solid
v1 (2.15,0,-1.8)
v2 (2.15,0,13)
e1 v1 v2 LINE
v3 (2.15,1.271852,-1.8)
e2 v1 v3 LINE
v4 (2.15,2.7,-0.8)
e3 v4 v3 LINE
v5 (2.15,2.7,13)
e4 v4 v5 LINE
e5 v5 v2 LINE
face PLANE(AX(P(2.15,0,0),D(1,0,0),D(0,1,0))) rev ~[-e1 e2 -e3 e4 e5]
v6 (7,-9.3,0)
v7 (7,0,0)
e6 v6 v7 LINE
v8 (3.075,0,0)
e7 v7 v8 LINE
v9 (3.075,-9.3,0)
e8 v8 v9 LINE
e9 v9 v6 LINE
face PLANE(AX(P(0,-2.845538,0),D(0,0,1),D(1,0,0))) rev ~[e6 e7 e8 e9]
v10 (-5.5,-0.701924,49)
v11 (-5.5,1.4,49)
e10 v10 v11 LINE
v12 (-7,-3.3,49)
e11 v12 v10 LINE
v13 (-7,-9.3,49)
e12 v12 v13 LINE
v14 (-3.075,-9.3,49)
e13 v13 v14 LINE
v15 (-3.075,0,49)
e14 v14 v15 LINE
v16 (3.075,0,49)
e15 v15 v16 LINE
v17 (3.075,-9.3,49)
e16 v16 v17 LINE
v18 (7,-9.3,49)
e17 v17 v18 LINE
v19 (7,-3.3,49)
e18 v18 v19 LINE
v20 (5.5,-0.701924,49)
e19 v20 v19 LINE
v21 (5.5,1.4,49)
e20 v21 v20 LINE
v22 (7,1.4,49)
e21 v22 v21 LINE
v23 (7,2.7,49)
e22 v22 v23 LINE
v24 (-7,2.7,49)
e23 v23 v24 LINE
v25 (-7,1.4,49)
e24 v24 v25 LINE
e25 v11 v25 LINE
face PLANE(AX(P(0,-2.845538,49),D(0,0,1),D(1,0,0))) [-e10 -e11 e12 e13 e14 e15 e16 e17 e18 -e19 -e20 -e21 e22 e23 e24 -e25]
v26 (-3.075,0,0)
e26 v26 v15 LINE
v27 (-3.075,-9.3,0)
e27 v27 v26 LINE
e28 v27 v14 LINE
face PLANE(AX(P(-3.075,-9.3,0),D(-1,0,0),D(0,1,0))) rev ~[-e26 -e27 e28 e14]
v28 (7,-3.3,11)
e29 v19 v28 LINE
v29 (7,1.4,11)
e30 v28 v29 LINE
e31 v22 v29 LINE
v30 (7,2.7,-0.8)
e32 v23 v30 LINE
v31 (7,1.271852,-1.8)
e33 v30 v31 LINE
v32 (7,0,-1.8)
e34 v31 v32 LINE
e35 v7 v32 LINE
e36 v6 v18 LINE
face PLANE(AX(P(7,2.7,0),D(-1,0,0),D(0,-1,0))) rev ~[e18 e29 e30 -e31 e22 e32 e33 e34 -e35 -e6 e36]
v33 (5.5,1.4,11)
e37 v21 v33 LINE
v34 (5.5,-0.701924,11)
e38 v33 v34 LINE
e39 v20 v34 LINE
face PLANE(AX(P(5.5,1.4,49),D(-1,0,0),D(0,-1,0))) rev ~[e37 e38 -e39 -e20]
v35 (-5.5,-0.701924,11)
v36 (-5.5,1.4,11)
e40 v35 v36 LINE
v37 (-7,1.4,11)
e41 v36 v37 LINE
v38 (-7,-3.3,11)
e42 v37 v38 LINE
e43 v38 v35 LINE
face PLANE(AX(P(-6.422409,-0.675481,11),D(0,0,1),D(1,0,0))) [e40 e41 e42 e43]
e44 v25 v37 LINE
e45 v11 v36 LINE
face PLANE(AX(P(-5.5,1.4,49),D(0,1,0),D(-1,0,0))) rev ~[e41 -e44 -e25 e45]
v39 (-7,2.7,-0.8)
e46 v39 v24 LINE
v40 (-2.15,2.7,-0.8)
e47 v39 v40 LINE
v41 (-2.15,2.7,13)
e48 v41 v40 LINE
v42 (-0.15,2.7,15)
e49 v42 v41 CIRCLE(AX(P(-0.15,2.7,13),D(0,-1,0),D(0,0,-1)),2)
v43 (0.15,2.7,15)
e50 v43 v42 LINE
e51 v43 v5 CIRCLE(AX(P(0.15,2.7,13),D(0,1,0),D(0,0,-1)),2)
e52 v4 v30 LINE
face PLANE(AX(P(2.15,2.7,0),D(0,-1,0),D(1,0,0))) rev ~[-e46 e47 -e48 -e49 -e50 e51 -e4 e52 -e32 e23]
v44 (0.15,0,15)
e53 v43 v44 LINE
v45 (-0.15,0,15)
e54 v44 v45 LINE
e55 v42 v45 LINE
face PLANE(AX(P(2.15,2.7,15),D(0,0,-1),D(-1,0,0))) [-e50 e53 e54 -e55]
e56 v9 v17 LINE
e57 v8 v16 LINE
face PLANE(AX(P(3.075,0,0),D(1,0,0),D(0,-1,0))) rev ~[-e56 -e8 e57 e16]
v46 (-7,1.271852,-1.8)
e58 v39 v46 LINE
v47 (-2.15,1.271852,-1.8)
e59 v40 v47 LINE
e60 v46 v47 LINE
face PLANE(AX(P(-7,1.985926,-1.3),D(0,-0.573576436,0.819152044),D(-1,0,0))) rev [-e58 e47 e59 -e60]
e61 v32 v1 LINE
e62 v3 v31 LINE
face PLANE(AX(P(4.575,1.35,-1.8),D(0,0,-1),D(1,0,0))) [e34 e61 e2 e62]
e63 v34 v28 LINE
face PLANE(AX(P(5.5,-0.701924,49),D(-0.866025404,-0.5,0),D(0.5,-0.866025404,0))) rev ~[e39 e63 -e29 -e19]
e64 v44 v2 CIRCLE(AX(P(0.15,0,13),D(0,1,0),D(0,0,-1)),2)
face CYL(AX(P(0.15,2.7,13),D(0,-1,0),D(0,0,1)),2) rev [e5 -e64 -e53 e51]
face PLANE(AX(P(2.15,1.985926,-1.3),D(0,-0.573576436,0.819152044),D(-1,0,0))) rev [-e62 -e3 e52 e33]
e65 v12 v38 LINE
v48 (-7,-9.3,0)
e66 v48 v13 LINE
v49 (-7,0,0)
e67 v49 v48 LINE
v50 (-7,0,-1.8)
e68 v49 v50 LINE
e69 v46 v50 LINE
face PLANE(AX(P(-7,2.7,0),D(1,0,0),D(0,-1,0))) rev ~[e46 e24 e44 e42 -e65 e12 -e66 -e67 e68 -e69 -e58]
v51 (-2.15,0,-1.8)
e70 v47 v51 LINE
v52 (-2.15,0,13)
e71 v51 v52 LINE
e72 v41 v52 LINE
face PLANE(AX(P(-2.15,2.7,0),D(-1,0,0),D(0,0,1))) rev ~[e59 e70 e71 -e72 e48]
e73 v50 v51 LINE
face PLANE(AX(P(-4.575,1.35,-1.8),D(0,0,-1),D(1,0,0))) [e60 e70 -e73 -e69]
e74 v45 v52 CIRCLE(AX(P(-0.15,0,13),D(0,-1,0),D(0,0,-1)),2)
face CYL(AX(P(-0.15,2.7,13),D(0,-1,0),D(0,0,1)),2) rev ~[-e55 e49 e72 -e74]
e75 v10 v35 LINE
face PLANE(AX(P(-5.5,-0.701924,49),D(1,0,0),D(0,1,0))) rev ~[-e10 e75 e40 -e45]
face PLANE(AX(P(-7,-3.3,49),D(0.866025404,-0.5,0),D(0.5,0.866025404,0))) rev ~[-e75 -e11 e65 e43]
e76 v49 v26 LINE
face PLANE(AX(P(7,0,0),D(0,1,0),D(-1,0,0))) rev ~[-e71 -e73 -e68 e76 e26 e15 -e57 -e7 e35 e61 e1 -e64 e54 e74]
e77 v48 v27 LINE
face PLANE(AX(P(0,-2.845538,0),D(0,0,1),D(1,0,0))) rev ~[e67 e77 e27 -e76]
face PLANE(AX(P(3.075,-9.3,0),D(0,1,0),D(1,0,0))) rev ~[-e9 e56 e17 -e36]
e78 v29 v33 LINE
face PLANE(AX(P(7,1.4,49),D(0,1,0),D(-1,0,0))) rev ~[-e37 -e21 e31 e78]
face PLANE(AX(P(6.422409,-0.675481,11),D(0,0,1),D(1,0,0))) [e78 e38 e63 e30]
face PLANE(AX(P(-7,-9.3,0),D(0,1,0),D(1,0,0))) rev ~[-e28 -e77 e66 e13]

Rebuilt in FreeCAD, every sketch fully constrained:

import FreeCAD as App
import Part
import Sketcher

V = App.Vector
Q = App.Units.Quantity


def edges_at(feature, points):
    """Names of the edges that pass closest to the given points."""
    edges = feature.Shape.Edges
    near = lambda p: min(range(len(edges)), key=lambda i: edges[i].distToShape(Part.Vertex(*p))[0])
    return sorted({f"Edge{near(p) + 1}" for p in points})

doc = App.newDocument("Part")
body = doc.addObject("PartDesign::Body", "Body")

sketch1 = body.newObject("Sketcher::SketchObject", "Sketch")
sketch1.AttachmentSupport = (doc.getObject("XY_Plane"), [""])
sketch1.MapMode = "FlatFace"
sketch1.addGeometry([
    Part.LineSegment(V(-3.1, -9.3, 0), V(-3.1, 0, 0)),
    Part.LineSegment(V(-3.1, 0, 0), V(3.1, 0, 0)),
    Part.LineSegment(V(3.1, 0, 0), V(3.1, -9.3, 0)),
    Part.LineSegment(V(3.1, -9.3, 0), V(7, -9.3, 0)),
    Part.LineSegment(V(7, -9.3, 0), V(7, 2.7, 0)),
    Part.LineSegment(V(7, 2.7, 0), V(-7, 2.7, 0)),
    Part.LineSegment(V(-7, 2.7, 0), V(-7, -9.3, 0)),
    Part.LineSegment(V(-7, -9.3, 0), V(-3.1, -9.3, 0)),
], False)
sketch1.addConstraint([
    Sketcher.Constraint("Coincident", 0, 2, 1, 1),
    Sketcher.Constraint("Coincident", 1, 2, 2, 1),
    Sketcher.Constraint("Coincident", 2, 2, 3, 1),
    Sketcher.Constraint("Coincident", 3, 2, 4, 1),
    Sketcher.Constraint("Coincident", 4, 2, 5, 1),
    Sketcher.Constraint("Coincident", 5, 2, 6, 1),
    Sketcher.Constraint("Coincident", 6, 2, 7, 1),
    Sketcher.Constraint("Coincident", 7, 2, 0, 1),
    Sketcher.Constraint("Vertical", 0),
    Sketcher.Constraint("Horizontal", 1),
    Sketcher.Constraint("Vertical", 2),
    Sketcher.Constraint("Horizontal", 3),
    Sketcher.Constraint("Vertical", 4),
    Sketcher.Constraint("Horizontal", 5),
    Sketcher.Constraint("Vertical", 6),
    Sketcher.Constraint("Horizontal", 7),
    Sketcher.Constraint("Symmetric", 0, 2, 1, 2, -1, 1),
    Sketcher.Constraint("Symmetric", 3, 2, 6, 2, -2),
    Sketcher.Constraint("DistanceX", 5, 2, 5, 1, 14.0),
    Sketcher.Constraint("DistanceY", 4, 1, 4, 2, 12.0),
    Sketcher.Constraint("DistanceY", 0, 1, 0, 2, 9.3),
    Sketcher.Constraint("DistanceX", 1, 1, 1, 2, 6.15),
])
pad1 = body.newObject("PartDesign::Pad", "Pad")
pad1.Profile = sketch1
pad1.Length = 49

sketch2 = body.newObject("Sketcher::SketchObject", "Sketch001")
sketch2.AttachmentSupport = (doc.getObject("XZ_Plane"), [""])
sketch2.MapMode = "FlatFace"
sketch2.AttachmentOffset = App.Placement(V(0, 0, -2.7), App.Rotation())
sketch2.addGeometry([
    Part.LineSegment(V(2.1, 15, 0), V(2.1, 0, 0)),
    Part.LineSegment(V(2.1, 0, 0), V(-2.1, 0, 0)),
    Part.LineSegment(V(-2.1, 0, 0), V(-2.1, 15, 0)),
    Part.LineSegment(V(-2.1, 15, 0), V(2.1, 15, 0)),
], False)
sketch2.addConstraint([
    Sketcher.Constraint("Coincident", 0, 2, 1, 1),
    Sketcher.Constraint("Coincident", 1, 2, 2, 1),
    Sketcher.Constraint("Coincident", 2, 2, 3, 1),
    Sketcher.Constraint("Coincident", 3, 2, 0, 1),
    Sketcher.Constraint("Vertical", 0),
    Sketcher.Constraint("Horizontal", 1),
    Sketcher.Constraint("Vertical", 2),
    Sketcher.Constraint("Horizontal", 3),
    Sketcher.Constraint("Symmetric", 0, 2, 1, 2, -1, 1),
    Sketcher.Constraint("DistanceY", 0, 2, 0, 1, 15.0),
    Sketcher.Constraint("DistanceX", 1, 2, 1, 1, 4.3),
])
pocket1 = body.newObject("PartDesign::Pocket", "Pocket")
pocket1.Profile = sketch2
pocket1.Length = 25
pocket1.Reversed = True

sketch3 = body.newObject("Sketcher::SketchObject", "Sketch002")
sketch3.AttachmentSupport = (doc.getObject("XY_Plane"), [""])
sketch3.MapMode = "FlatFace"
sketch3.addGeometry([
    Part.LineSegment(V(2.1, 2.7, 0), V(7, 2.7, 0)),
    Part.LineSegment(V(7, 2.7, 0), V(7, 0, 0)),
    Part.LineSegment(V(7, 0, 0), V(2.1, 0, 0)),
    Part.LineSegment(V(2.1, 0, 0), V(2.1, 2.7, 0)),
    Part.LineSegment(V(-7, 0, 0), V(-7, 2.7, 0)),
    Part.LineSegment(V(-7, 2.7, 0), V(-2.1, 2.7, 0)),
    Part.LineSegment(V(-2.1, 2.7, 0), V(-2.1, 0, 0)),
    Part.LineSegment(V(-2.1, 0, 0), V(-7, 0, 0)),
], False)
sketch3.addConstraint([
    Sketcher.Constraint("Coincident", 0, 2, 1, 1),
    Sketcher.Constraint("Coincident", 1, 2, 2, 1),
    Sketcher.Constraint("Coincident", 2, 2, 3, 1),
    Sketcher.Constraint("Coincident", 3, 2, 0, 1),
    Sketcher.Constraint("Coincident", 4, 2, 5, 1),
    Sketcher.Constraint("Coincident", 5, 2, 6, 1),
    Sketcher.Constraint("Coincident", 6, 2, 7, 1),
    Sketcher.Constraint("Coincident", 7, 2, 4, 1),
    Sketcher.Constraint("Horizontal", 0),
    Sketcher.Constraint("Vertical", 1),
    Sketcher.Constraint("Horizontal", 2),
    Sketcher.Constraint("Vertical", 3),
    Sketcher.Constraint("Vertical", 4),
    Sketcher.Constraint("Horizontal", 5),
    Sketcher.Constraint("Vertical", 6),
    Sketcher.Constraint("Horizontal", 7),
    Sketcher.Constraint("Symmetric", 2, 2, 6, 2, -1, 1),
    Sketcher.Constraint("Symmetric", 0, 2, 4, 2, -2),
    Sketcher.Constraint("PointOnObject", 1, 2, -1),
    Sketcher.Constraint("DistanceY", 1, 2, 1, 1, 2.7),
    Sketcher.Constraint("DistanceX", -1, 1, 0, 2, 7.0),
    Sketcher.Constraint("DistanceX", 0, 1, 0, 2, 4.85),
])
pad2 = body.newObject("PartDesign::Pad", "Pad001")
pad2.Profile = sketch3
pad2.Length = 1.8
pad2.Reversed = True
doc.recompute()

fillet = body.newObject("PartDesign::Fillet", "Fillet")
fillet.Base = (pad2, edges_at(pad2, [(2.15, 1.35, 15), (-2.15, 1.35, 15)]))
fillet.Radius = 2
doc.recompute()

chamfer = body.newObject("PartDesign::Chamfer", "Chamfer")
chamfer.Base = (fillet, edges_at(fillet, [(4.575, 2.7, -1.8), (-4.575, 2.7, -1.8)]))
chamfer.ChamferType = "Two distances"
chamfer.Size = 1
chamfer.Size2 = 1.428148

sketch4 = body.newObject("Sketcher::SketchObject", "Sketch003")
sketch4.AttachmentSupport = (doc.getObject("XY_Plane"), [""])
sketch4.MapMode = "FlatFace"
sketch4.AttachmentOffset = App.Placement(V(0, 0, 49), App.Rotation())
sketch4.addGeometry([
    Part.LineSegment(V(7, -3.3, 0), V(7, 1.4, 0)),
    Part.LineSegment(V(7, 1.4, 0), V(5.5, 1.4, 0)),
    Part.LineSegment(V(5.5, 1.4, 0), V(5.5, -0.7, 0)),
    Part.LineSegment(V(5.5, -0.7, 0), V(7, -3.3, 0)),
    Part.LineSegment(V(-5.5, 1.4, 0), V(-7, 1.4, 0)),
    Part.LineSegment(V(-7, 1.4, 0), V(-7, -3.3, 0)),
    Part.LineSegment(V(-7, -3.3, 0), V(-5.5, -0.7, 0)),
    Part.LineSegment(V(-5.5, -0.7, 0), V(-5.5, 1.4, 0)),
], False)
sketch4.addConstraint([
    Sketcher.Constraint("Coincident", 0, 2, 1, 1),
    Sketcher.Constraint("Coincident", 1, 2, 2, 1),
    Sketcher.Constraint("Coincident", 2, 2, 3, 1),
    Sketcher.Constraint("Coincident", 3, 2, 0, 1),
    Sketcher.Constraint("Coincident", 4, 2, 5, 1),
    Sketcher.Constraint("Coincident", 5, 2, 6, 1),
    Sketcher.Constraint("Coincident", 6, 2, 7, 1),
    Sketcher.Constraint("Coincident", 7, 2, 4, 1),
    Sketcher.Constraint("Vertical", 0),
    Sketcher.Constraint("Horizontal", 1),
    Sketcher.Constraint("Vertical", 2),
    Sketcher.Constraint("Horizontal", 4),
    Sketcher.Constraint("Vertical", 5),
    Sketcher.Constraint("Vertical", 7),
    Sketcher.Constraint("Symmetric", 0, 2, 4, 2, -2),
    Sketcher.Constraint("Symmetric", 2, 2, 6, 2, -2),
    Sketcher.Constraint("Horizontal", 3, 2, 5, 2),
    Sketcher.Constraint("Angle", 3, Q("-60 deg")),
    Sketcher.Constraint("Distance", 3, 3.0),
    Sketcher.Constraint("DistanceY", 0, 1, 0, 2, 4.7),
    Sketcher.Constraint("DistanceX", -1, 1, 0, 2, 7.0),
    Sketcher.Constraint("DistanceY", -1, 1, 0, 2, 1.4),
])
pocket2 = body.newObject("PartDesign::Pocket", "Pocket001")
pocket2.Profile = sketch4
pocket2.Length = 38

doc.recompute()
